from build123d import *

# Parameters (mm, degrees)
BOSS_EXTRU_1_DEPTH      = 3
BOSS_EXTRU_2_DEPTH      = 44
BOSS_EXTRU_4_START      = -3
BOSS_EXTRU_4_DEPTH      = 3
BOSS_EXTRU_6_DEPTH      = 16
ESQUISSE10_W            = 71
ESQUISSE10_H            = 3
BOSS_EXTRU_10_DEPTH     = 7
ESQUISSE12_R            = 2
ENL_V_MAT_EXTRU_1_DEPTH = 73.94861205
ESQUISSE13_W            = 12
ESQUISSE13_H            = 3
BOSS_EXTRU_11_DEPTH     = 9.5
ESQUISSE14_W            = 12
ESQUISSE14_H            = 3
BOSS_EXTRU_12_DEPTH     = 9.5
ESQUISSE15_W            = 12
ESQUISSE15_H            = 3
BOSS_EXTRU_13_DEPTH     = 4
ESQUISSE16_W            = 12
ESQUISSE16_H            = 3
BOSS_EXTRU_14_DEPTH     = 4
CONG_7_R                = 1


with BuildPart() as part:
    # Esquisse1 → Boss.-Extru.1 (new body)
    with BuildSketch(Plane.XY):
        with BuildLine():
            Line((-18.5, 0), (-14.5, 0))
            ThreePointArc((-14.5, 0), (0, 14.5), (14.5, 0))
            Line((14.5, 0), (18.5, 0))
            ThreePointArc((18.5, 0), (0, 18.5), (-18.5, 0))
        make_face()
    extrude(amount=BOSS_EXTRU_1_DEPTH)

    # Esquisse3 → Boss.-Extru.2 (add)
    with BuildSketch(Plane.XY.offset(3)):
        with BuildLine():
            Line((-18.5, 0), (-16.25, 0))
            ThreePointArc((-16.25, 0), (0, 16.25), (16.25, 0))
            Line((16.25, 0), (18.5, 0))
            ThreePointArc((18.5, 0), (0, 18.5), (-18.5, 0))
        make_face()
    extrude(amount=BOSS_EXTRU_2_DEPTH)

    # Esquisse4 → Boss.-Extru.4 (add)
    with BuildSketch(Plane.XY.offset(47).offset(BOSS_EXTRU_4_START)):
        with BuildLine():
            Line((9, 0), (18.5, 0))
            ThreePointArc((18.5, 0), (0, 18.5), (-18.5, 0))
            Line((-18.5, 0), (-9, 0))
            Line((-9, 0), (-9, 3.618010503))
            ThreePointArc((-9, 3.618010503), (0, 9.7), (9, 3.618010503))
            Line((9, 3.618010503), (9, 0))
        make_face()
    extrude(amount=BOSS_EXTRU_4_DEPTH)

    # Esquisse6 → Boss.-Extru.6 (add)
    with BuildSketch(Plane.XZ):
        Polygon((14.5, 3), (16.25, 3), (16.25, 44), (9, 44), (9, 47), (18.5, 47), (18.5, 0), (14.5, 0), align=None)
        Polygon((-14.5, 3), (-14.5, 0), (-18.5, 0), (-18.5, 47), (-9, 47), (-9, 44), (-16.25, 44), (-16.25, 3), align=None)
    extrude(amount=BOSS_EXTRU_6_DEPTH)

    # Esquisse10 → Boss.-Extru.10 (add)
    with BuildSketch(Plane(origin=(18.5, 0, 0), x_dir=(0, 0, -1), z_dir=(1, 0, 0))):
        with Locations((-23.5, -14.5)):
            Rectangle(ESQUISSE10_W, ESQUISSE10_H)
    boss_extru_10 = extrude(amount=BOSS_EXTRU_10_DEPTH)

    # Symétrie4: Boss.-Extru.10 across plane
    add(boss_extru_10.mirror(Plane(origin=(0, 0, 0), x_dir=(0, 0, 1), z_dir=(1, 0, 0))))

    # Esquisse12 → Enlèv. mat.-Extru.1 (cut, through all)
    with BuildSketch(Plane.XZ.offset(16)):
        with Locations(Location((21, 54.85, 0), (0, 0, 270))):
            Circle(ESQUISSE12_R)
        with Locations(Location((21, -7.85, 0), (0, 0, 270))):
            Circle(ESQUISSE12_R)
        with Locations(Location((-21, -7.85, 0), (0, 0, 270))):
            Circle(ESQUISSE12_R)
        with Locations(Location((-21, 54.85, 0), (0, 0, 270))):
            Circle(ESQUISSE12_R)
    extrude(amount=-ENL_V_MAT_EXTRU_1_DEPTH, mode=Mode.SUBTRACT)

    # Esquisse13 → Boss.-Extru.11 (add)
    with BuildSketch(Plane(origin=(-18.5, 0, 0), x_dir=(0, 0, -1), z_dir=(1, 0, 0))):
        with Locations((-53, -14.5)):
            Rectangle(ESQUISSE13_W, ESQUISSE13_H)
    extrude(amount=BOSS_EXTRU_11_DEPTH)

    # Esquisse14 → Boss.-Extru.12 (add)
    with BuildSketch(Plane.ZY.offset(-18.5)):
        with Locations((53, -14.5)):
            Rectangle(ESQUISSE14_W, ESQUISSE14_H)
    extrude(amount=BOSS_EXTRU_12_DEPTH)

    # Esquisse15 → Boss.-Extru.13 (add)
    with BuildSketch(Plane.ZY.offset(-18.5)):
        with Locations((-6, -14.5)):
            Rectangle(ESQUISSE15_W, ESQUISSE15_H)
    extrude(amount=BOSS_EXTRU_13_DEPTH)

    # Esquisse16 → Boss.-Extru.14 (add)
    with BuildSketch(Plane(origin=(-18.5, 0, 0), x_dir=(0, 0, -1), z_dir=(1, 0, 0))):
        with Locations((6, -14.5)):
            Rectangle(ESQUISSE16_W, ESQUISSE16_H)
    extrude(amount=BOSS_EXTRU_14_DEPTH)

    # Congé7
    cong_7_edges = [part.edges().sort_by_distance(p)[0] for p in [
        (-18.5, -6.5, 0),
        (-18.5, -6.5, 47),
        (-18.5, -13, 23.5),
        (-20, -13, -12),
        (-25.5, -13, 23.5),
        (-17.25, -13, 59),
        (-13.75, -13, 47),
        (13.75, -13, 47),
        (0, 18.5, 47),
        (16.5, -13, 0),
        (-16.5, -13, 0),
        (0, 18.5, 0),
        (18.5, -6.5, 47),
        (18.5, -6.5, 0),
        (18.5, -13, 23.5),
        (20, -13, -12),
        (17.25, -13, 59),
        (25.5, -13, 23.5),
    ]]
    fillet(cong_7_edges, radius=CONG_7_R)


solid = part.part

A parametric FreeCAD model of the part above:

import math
import FreeCAD as App
import Part
import Sketcher

V = App.Vector


def edges_at(feature, points):
    """Names of the edges that pass closest to the given points."""
    edges = feature.Shape.Edges
    near = lambda p: min(range(len(edges)), key=lambda i: edges[i].distToShape(Part.Vertex(*p))[0])
    return sorted({f"Edge{near(p) + 1}" for p in points})

doc = App.newDocument("Part")
body = doc.addObject("PartDesign::Body", "Body")

sketch1 = doc.addObject("Sketcher::SketchObject", "Sketch")
body.addObject(sketch1)
sketch1.AttachmentSupport = (doc.XY_Plane, [""])
sketch1.MapMode = "FlatFace"
sketch1.addGeometry([
    Part.LineSegment(V(-18.5, 0, 0), V(-14.5, 0, 0)),
    Part.ArcOfCircle(Part.Circle(V(0, 0, 0), V(0, 0, 1), 14.5), math.radians(0), math.radians(180)),
    Part.LineSegment(V(14.5, 0, 0), V(18.5, 0, 0)),
    Part.ArcOfCircle(Part.Circle(V(0, 0, 0), V(0, 0, 1), 18.5), math.radians(0), math.radians(180)),
], False)
sketch1.addConstraint([
    Sketcher.Constraint("Coincident", 0, 2, 1, 2),
    Sketcher.Constraint("Coincident", 1, 1, 2, 1),
    Sketcher.Constraint("Coincident", 2, 2, 3, 1),
    Sketcher.Constraint("Coincident", 3, 2, 0, 1),
    Sketcher.Constraint("Horizontal", 0),
    Sketcher.Constraint("Horizontal", 2),
    Sketcher.Constraint("Coincident", 1, 3, -1, 1),
    Sketcher.Constraint("Coincident", 3, 3, -1, 1),
    Sketcher.Constraint("PointOnObject", 0, 2, -1),
    Sketcher.Constraint("PointOnObject", 1, 1, -1),
    Sketcher.Constraint("Radius", 1, 14.5),
    Sketcher.Constraint("Radius", 3, 18.5),
])
pad1 = doc.addObject("PartDesign::Pad", "Pad")
body.addObject(pad1)
pad1.Profile = sketch1
pad1.Length = 3

sketch2 = doc.addObject("Sketcher::SketchObject", "Sketch001")
body.addObject(sketch2)
sketch2.AttachmentSupport = (doc.XY_Plane, [""])
sketch2.MapMode = "FlatFace"
sketch2.AttachmentOffset = App.Placement(V(0, 0, 3), App.Rotation())
sketch2.addGeometry([
    Part.LineSegment(V(-18.5, 0, 0), V(-16.25, 0, 0)),
    Part.ArcOfCircle(Part.Circle(V(0, 0, 0), V(0, 0, 1), 16.25), math.radians(0), math.radians(180)),
    Part.LineSegment(V(16.25, 0, 0), V(18.5, 0, 0)),
    Part.ArcOfCircle(Part.Circle(V(0, 0, 0), V(0, 0, 1), 18.5), math.radians(0), math.radians(180)),
], False)
sketch2.addConstraint([
    Sketcher.Constraint("Coincident", 0, 2, 1, 2),
    Sketcher.Constraint("Coincident", 1, 1, 2, 1),
    Sketcher.Constraint("Coincident", 2, 2, 3, 1),
    Sketcher.Constraint("Coincident", 3, 2, 0, 1),
    Sketcher.Constraint("Horizontal", 0),
    Sketcher.Constraint("Horizontal", 2),
    Sketcher.Constraint("Coincident", 1, 3, -1, 1),
    Sketcher.Constraint("Coincident", 3, 3, -1, 1),
    Sketcher.Constraint("PointOnObject", 0, 2, -1),
    Sketcher.Constraint("PointOnObject", 1, 1, -1),
    Sketcher.Constraint("Radius", 3, 18.5),
    Sketcher.Constraint("Radius", 1, 16.25),
])
pad2 = doc.addObject("PartDesign::Pad", "Pad001")
body.addObject(pad2)
pad2.Profile = sketch2
pad2.Length = 44

sketch3 = doc.addObject("Sketcher::SketchObject", "Sketch002")
body.addObject(sketch3)
sketch3.AttachmentSupport = (doc.XY_Plane, [""])
sketch3.MapMode = "FlatFace"
sketch3.AttachmentOffset = App.Placement(V(0, 0, 44), App.Rotation())
sketch3.addGeometry([
    Part.LineSegment(V(9, 0, 0), V(18.5, 0, 0)),
    Part.ArcOfCircle(Part.Circle(V(0, 0, 0), V(0, 0, 1), 18.5), math.radians(0), math.radians(180)),
    Part.LineSegment(V(-18.5, 0, 0), V(-9, 0, 0)),
    Part.LineSegment(V(-9, 0, 0), V(-9, 3.618011, 0)),
    Part.ArcOfCircle(Part.Circle(V(0, 0, 0), V(0, 0, 1), 9.7), math.radians(21.900185), math.radians(158.099815)),
    Part.LineSegment(V(9, 3.618011, 0), V(9, 0, 0)),
], False)
sketch3.addConstraint([
    Sketcher.Constraint("Coincident", 0, 2, 1, 1),
    Sketcher.Constraint("Coincident", 1, 2, 2, 1),
    Sketcher.Constraint("Coincident", 2, 2, 3, 1),
    Sketcher.Constraint("Coincident", 3, 2, 4, 2),
    Sketcher.Constraint("Coincident", 4, 1, 5, 1),
    Sketcher.Constraint("Coincident", 5, 2, 0, 1),
    Sketcher.Constraint("Horizontal", 0),
    Sketcher.Constraint("Horizontal", 2),
    Sketcher.Constraint("Vertical", 3),
    Sketcher.Constraint("Vertical", 5),
    Sketcher.Constraint("Coincident", 1, 3, -1, 1),
    Sketcher.Constraint("Coincident", 4, 3, -1, 1),
    Sketcher.Constraint("Symmetric", 2, 2, 5, 2, -1, 1),
    Sketcher.Constraint("PointOnObject", 0, 2, -1),
    Sketcher.Constraint("Radius", 1, 18.5),
    Sketcher.Constraint("Radius", 4, 9.7),
    Sketcher.Constraint("DistanceX", 0, 1, 0, 2, 9.5),
])
pad3 = doc.addObject("PartDesign::Pad", "Pad002")
body.addObject(pad3)
pad3.Profile = sketch3
pad3.Length = 3

sketch4 = doc.addObject("Sketcher::SketchObject", "Sketch003")
body.addObject(sketch4)
sketch4.AttachmentSupport = (doc.XZ_Plane, [""])
sketch4.MapMode = "FlatFace"
sketch4.addGeometry([
    Part.LineSegment(V(16.25, 3, 0), V(14.5, 3, 0)),
    Part.LineSegment(V(14.5, 3, 0), V(14.5, 0, 0)),
    Part.LineSegment(V(14.5, 0, 0), V(18.5, 0, 0)),
    Part.LineSegment(V(18.5, 0, 0), V(18.5, 47, 0)),
    Part.LineSegment(V(18.5, 47, 0), V(9, 47, 0)),
    Part.LineSegment(V(9, 47, 0), V(9, 44, 0)),
    Part.LineSegment(V(9, 44, 0), V(16.25, 44, 0)),
    Part.LineSegment(V(16.25, 44, 0), V(16.25, 3, 0)),
    Part.LineSegment(V(-14.5, 0, 0), V(-14.5, 3, 0)),
    Part.LineSegment(V(-14.5, 3, 0), V(-16.25, 3, 0)),
    Part.LineSegment(V(-16.25, 3, 0), V(-16.25, 44, 0)),
    Part.LineSegment(V(-16.25, 44, 0), V(-9, 44, 0)),
    Part.LineSegment(V(-9, 44, 0), V(-9, 47, 0)),
    Part.LineSegment(V(-9, 47, 0), V(-18.5, 47, 0)),
    Part.LineSegment(V(-18.5, 47, 0), V(-18.5, 0, 0)),
    Part.LineSegment(V(-18.5, 0, 0), V(-14.5, 0, 0)),
], False)
sketch4.addConstraint([
    Sketcher.Constraint("Coincident", 0, 2, 1, 1),
    Sketcher.Constraint("Coincident", 1, 2, 2, 1),
    Sketcher.Constraint("Coincident", 2, 2, 3, 1),
    Sketcher.Constraint("Coincident", 3, 2, 4, 1),
    Sketcher.Constraint("Coincident", 4, 2, 5, 1),
    Sketcher.Constraint("Coincident", 5, 2, 6, 1),
    Sketcher.Constraint("Coincident", 6, 2, 7, 1),
    Sketcher.Constraint("Coincident", 7, 2, 0, 1),
    Sketcher.Constraint("Coincident", 8, 2, 9, 1),
    Sketcher.Constraint("Coincident", 9, 2, 10, 1),
    Sketcher.Constraint("Coincident", 10, 2, 11, 1),
    Sketcher.Constraint("Coincident", 11, 2, 12, 1),
    Sketcher.Constraint("Coincident", 12, 2, 13, 1),
    Sketcher.Constraint("Coincident", 13, 2, 14, 1),
    Sketcher.Constraint("Coincident", 14, 2, 15, 1),
    Sketcher.Constraint("Coincident", 15, 2, 8, 1),
    Sketcher.Constraint("Horizontal", 0),
    Sketcher.Constraint("Vertical", 1),
    Sketcher.Constraint("Horizontal", 2),
    Sketcher.Constraint("Vertical", 3),
    Sketcher.Constraint("Horizontal", 4),
    Sketcher.Constraint("Vertical", 5),
    Sketcher.Constraint("Horizontal", 6),
    Sketcher.Constraint("Vertical", 7),
    Sketcher.Constraint("Vertical", 8),
    Sketcher.Constraint("Horizontal", 9),
    Sketcher.Constraint("Vertical", 10),
    Sketcher.Constraint("Horizontal", 11),
    Sketcher.Constraint("Vertical", 12),
    Sketcher.Constraint("Horizontal", 13),
    Sketcher.Constraint("Vertical", 14),
    Sketcher.Constraint("Horizontal", 15),
    Sketcher.Constraint("Symmetric", 2, 2, 14, 2, -1, 1),
    Sketcher.Constraint("Symmetric", 0, 2, 8, 2, -2),
    Sketcher.Constraint("Symmetric", 6, 2, 10, 2, -2),
    Sketcher.Constraint("Symmetric", 4, 2, 12, 2, -2),
    Sketcher.Constraint("PointOnObject", 1, 2, -1),
    Sketcher.Constraint("Equal", 1, 5),
    Sketcher.Constraint("DistanceX", 2, 1, 2, 2, 4.0),
    Sketcher.Constraint("DistanceY", 1, 2, 1, 1, 3.0),
    Sketcher.Constraint("DistanceY", 3, 1, 3, 2, 47.0),
    Sketcher.Constraint("DistanceX", 4, 2, 4, 1, 9.5),
    Sketcher.Constraint("DistanceX", -1, 1, 4, 2, 9.0),
    Sketcher.Constraint("DistanceX", 0, 2, 0, 1, 1.75),
])
pad4 = doc.addObject("PartDesign::Pad", "Pad003")
body.addObject(pad4)
pad4.Profile = sketch4
pad4.Length = 16

sketch5 = doc.addObject("Sketcher::SketchObject", "Sketch004")
body.addObject(sketch5)
sketch5.AttachmentSupport = (doc.YZ_Plane, [""])
sketch5.MapMode = "FlatFace"
sketch5.AttachmentOffset = App.Placement(V(0, 0, 18.5), App.Rotation())
sketch5.addGeometry([
    Part.LineSegment(V(-13, 59, 0), V(-16, 59, 0)),
    Part.LineSegment(V(-16, 59, 0), V(-16, -12, 0)),
    Part.LineSegment(V(-16, -12, 0), V(-13, -12, 0)),
    Part.LineSegment(V(-13, -12, 0), V(-13, 59, 0)),
], False)
sketch5.addConstraint([
    Sketcher.Constraint("Coincident", 0, 2, 1, 1),
    Sketcher.Constraint("Coincident", 1, 2, 2, 1),
    Sketcher.Constraint("Coincident", 2, 2, 3, 1),
    Sketcher.Constraint("Coincident", 3, 2, 0, 1),
    Sketcher.Constraint("Horizontal", 0),
    Sketcher.Constraint("Vertical", 1),
    Sketcher.Constraint("Horizontal", 2),
    Sketcher.Constraint("Vertical", 3),
    Sketcher.Constraint("DistanceX", 0, 2, 0, 1, 3.0),
    Sketcher.Constraint("DistanceY", 1, 2, 1, 1, 71.0),
    Sketcher.Constraint("DistanceX", 0, 2, -1, 1, 16.0),
    Sketcher.Constraint("DistanceY", -1, 1, 0, 2, 59.0),
])
pad5 = doc.addObject("PartDesign::Pad", "Pad004")
body.addObject(pad5)
pad5.Profile = sketch5
pad5.Length = 7
doc.recompute()

mirrored = doc.addObject("PartDesign::Mirrored", "Mirrored")
body.addObject(mirrored)
mirrored.Originals = [pad5]
mirrored.MirrorPlane = (doc.YZ_Plane, [""])
body.Tip = mirrored

sketch6 = doc.addObject("Sketcher::SketchObject", "Sketch005")
body.addObject(sketch6)
sketch6.AttachmentSupport = (doc.XZ_Plane, [""])
sketch6.MapMode = "FlatFace"
sketch6.AttachmentOffset = App.Placement(V(0, 0, 16), App.Rotation())
sketch6.addGeometry([
    Part.Circle(V(21, 54.85, 0), V(0, 0, 1), 2),
    Part.Circle(V(21, -7.85, 0), V(0, 0, 1), 2),
    Part.Circle(V(-21, -7.85, 0), V(0, 0, 1), 2),
    Part.Circle(V(-21, 54.85, 0), V(0, 0, 1), 2),
], False)
sketch6.addConstraint([
    Sketcher.Constraint("Equal", 0, 1),
    Sketcher.Constraint("Equal", 1, 2),
    Sketcher.Constraint("Equal", 2, 3),
    Sketcher.Constraint("Symmetric", 1, 3, 2, 3, -2),
    Sketcher.Constraint("Symmetric", 0, 3, 3, 3, -2),
    Sketcher.Constraint("Vertical", 0, 3, 1, 3),
    Sketcher.Constraint("Diameter", 0, 4.0),
    Sketcher.Constraint("DistanceX", -1, 1, 0, 3, 21.0),
    Sketcher.Constraint("DistanceY", 1, 3, 0, 3, 62.7),
    Sketcher.Constraint("DistanceY", -1, 1, 0, 3, 54.85),
])
pocket1 = doc.addObject("PartDesign::Pocket", "Pocket")
body.addObject(pocket1)
pocket1.Profile = sketch6
pocket1.Type = "ThroughAll"

sketch7 = doc.addObject("Sketcher::SketchObject", "Sketch006")
body.addObject(sketch7)
sketch7.AttachmentSupport = (doc.YZ_Plane, [""])
sketch7.MapMode = "FlatFace"
sketch7.AttachmentOffset = App.Placement(V(0, 0, -18.5), App.Rotation())
sketch7.addGeometry([
    Part.LineSegment(V(-13, 59, 0), V(-16, 59, 0)),
    Part.LineSegment(V(-16, 59, 0), V(-16, 47, 0)),
    Part.LineSegment(V(-16, 47, 0), V(-13, 47, 0)),
    Part.LineSegment(V(-13, 47, 0), V(-13, 59, 0)),
], False)
sketch7.addConstraint([
    Sketcher.Constraint("Coincident", 0, 2, 1, 1),
    Sketcher.Constraint("Coincident", 1, 2, 2, 1),
    Sketcher.Constraint("Coincident", 2, 2, 3, 1),
    Sketcher.Constraint("Coincident", 3, 2, 0, 1),
    Sketcher.Constraint("Horizontal", 0),
    Sketcher.Constraint("Vertical", 1),
    Sketcher.Constraint("Horizontal", 2),
    Sketcher.Constraint("Vertical", 3),
    Sketcher.Constraint("DistanceX", 0, 2, 0, 1, 3.0),
    Sketcher.Constraint("DistanceY", 1, 2, 1, 1, 12.0),
    Sketcher.Constraint("DistanceX", 0, 2, -1, 1, 16.0),
    Sketcher.Constraint("DistanceY", -1, 1, 0, 2, 59.0),
])
pad6 = doc.addObject("PartDesign::Pad", "Pad005")
body.addObject(pad6)
pad6.Profile = sketch7
pad6.Length = 9.5

sketch8 = doc.addObject("Sketcher::SketchObject", "Sketch007")
body.addObject(sketch8)
sketch8.AttachmentSupport = (doc.YZ_Plane, [""])
sketch8.MapMode = "FlatFace"
sketch8.AttachmentOffset = App.Placement(V(0, 0, 18.5), App.Rotation())
sketch8.addGeometry([
    Part.LineSegment(V(-13, 47, 0), V(-16, 47, 0)),
    Part.LineSegment(V(-16, 47, 0), V(-16, 59, 0)),
    Part.LineSegment(V(-16, 59, 0), V(-13, 59, 0)),
    Part.LineSegment(V(-13, 59, 0), V(-13, 47, 0)),
], False)
sketch8.addConstraint([
    Sketcher.Constraint("Coincident", 0, 2, 1, 1),
    Sketcher.Constraint("Coincident", 1, 2, 2, 1),
    Sketcher.Constraint("Coincident", 2, 2, 3, 1),
    Sketcher.Constraint("Coincident", 3, 2, 0, 1),
    Sketcher.Constraint("Horizontal", 0),
    Sketcher.Constraint("Vertical", 1),
    Sketcher.Constraint("Horizontal", 2),
    Sketcher.Constraint("Vertical", 3),
    Sketcher.Constraint("DistanceX", 0, 2, 0, 1, 3.0),
    Sketcher.Constraint("DistanceY", 1, 1, 1, 2, 12.0),
    Sketcher.Constraint("DistanceX", 0, 2, -1, 1, 16.0),
    Sketcher.Constraint("DistanceY", -1, 1, 0, 2, 47.0),
])
pad7 = doc.addObject("PartDesign::Pad", "Pad006")
body.addObject(pad7)
pad7.Profile = sketch8
pad7.Length = 9.5
pad7.Reversed = True

sketch9 = doc.addObject("Sketcher::SketchObject", "Sketch008")
body.addObject(sketch9)
sketch9.AttachmentSupport = (doc.YZ_Plane, [""])
sketch9.MapMode = "FlatFace"
sketch9.AttachmentOffset = App.Placement(V(0, 0, 18.5), App.Rotation())
sketch9.addGeometry([
    Part.LineSegment(V(-13, -12, 0), V(-16, -12, 0)),
    Part.LineSegment(V(-16, -12, 0), V(-16, 0, 0)),
    Part.LineSegment(V(-16, 0, 0), V(-13, 0, 0)),
    Part.LineSegment(V(-13, 0, 0), V(-13, -12, 0)),
], False)
sketch9.addConstraint([
    Sketcher.Constraint("Coincident", 0, 2, 1, 1),
    Sketcher.Constraint("Coincident", 1, 2, 2, 1),
    Sketcher.Constraint("Coincident", 2, 2, 3, 1),
    Sketcher.Constraint("Coincident", 3, 2, 0, 1),
    Sketcher.Constraint("Horizontal", 0),
    Sketcher.Constraint("Vertical", 1),
    Sketcher.Constraint("Horizontal", 2),
    Sketcher.Constraint("Vertical", 3),
    Sketcher.Constraint("PointOnObject", 1, 2, -1),
    Sketcher.Constraint("DistanceX", 0, 2, 0, 1, 3.0),
    Sketcher.Constraint("DistanceY", 1, 1, 1, 2, 12.0),
    Sketcher.Constraint("DistanceX", 0, 2, -1, 1, 16.0),
])
pad8 = doc.addObject("PartDesign::Pad", "Pad007")
body.addObject(pad8)
pad8.Profile = sketch9
pad8.Length = 4
pad8.Reversed = True

sketch10 = doc.addObject("Sketcher::SketchObject", "Sketch009")
body.addObject(sketch10)
sketch10.AttachmentSupport = (doc.YZ_Plane, [""])
sketch10.MapMode = "FlatFace"
sketch10.AttachmentOffset = App.Placement(V(0, 0, -18.5), App.Rotation())
sketch10.addGeometry([
    Part.LineSegment(V(-13, 0, 0), V(-16, 0, 0)),
    Part.LineSegment(V(-16, 0, 0), V(-16, -12, 0)),
    Part.LineSegment(V(-16, -12, 0), V(-13, -12, 0)),
    Part.LineSegment(V(-13, -12, 0), V(-13, 0, 0)),
], False)
sketch10.addConstraint([
    Sketcher.Constraint("Coincident", 0, 2, 1, 1),
    Sketcher.Constraint("Coincident", 1, 2, 2, 1),
    Sketcher.Constraint("Coincident", 2, 2, 3, 1),
    Sketcher.Constraint("Coincident", 3, 2, 0, 1),
    Sketcher.Constraint("Horizontal", 0),
    Sketcher.Constraint("Vertical", 1),
    Sketcher.Constraint("Horizontal", 2),
    Sketcher.Constraint("Vertical", 3),
    Sketcher.Constraint("PointOnObject", 0, 2, -1),
    Sketcher.Constraint("DistanceX", 0, 2, 0, 1, 3.0),
    Sketcher.Constraint("DistanceY", 1, 2, 1, 1, 12.0),
    Sketcher.Constraint("DistanceX", 0, 2, -1, 1, 16.0),
])
pad9 = doc.addObject("PartDesign::Pad", "Pad008")
body.addObject(pad9)
pad9.Profile = sketch10
pad9.Length = 4
doc.recompute()

fillet = doc.addObject("PartDesign::Fillet", "Fillet")
body.addObject(fillet)
fillet.Base = (pad9, edges_at(pad9, [
    (-18.5, -6.5, 0),
    (-18.5, -6.5, 47),
    (-18.5, -13, 23.5),
    (-20, -13, -12),
    (-25.5, -13, 23.5),
    (-17.25, -13, 59),
    (-13.75, -13, 47),
    (13.75, -13, 47),
    (0, 18.5, 47),
    (16.5, -13, 0),
    (-16.5, -13, 0),
    (0, 18.5, 0),
    (18.5, -6.5, 47),
    (18.5, -6.5, 0),
    (18.5, -13, 23.5),
    (20, -13, -12),
    (17.25, -13, 59),
    (25.5, -13, 23.5),
]))
fillet.Radius = 1

doc.recompute()
